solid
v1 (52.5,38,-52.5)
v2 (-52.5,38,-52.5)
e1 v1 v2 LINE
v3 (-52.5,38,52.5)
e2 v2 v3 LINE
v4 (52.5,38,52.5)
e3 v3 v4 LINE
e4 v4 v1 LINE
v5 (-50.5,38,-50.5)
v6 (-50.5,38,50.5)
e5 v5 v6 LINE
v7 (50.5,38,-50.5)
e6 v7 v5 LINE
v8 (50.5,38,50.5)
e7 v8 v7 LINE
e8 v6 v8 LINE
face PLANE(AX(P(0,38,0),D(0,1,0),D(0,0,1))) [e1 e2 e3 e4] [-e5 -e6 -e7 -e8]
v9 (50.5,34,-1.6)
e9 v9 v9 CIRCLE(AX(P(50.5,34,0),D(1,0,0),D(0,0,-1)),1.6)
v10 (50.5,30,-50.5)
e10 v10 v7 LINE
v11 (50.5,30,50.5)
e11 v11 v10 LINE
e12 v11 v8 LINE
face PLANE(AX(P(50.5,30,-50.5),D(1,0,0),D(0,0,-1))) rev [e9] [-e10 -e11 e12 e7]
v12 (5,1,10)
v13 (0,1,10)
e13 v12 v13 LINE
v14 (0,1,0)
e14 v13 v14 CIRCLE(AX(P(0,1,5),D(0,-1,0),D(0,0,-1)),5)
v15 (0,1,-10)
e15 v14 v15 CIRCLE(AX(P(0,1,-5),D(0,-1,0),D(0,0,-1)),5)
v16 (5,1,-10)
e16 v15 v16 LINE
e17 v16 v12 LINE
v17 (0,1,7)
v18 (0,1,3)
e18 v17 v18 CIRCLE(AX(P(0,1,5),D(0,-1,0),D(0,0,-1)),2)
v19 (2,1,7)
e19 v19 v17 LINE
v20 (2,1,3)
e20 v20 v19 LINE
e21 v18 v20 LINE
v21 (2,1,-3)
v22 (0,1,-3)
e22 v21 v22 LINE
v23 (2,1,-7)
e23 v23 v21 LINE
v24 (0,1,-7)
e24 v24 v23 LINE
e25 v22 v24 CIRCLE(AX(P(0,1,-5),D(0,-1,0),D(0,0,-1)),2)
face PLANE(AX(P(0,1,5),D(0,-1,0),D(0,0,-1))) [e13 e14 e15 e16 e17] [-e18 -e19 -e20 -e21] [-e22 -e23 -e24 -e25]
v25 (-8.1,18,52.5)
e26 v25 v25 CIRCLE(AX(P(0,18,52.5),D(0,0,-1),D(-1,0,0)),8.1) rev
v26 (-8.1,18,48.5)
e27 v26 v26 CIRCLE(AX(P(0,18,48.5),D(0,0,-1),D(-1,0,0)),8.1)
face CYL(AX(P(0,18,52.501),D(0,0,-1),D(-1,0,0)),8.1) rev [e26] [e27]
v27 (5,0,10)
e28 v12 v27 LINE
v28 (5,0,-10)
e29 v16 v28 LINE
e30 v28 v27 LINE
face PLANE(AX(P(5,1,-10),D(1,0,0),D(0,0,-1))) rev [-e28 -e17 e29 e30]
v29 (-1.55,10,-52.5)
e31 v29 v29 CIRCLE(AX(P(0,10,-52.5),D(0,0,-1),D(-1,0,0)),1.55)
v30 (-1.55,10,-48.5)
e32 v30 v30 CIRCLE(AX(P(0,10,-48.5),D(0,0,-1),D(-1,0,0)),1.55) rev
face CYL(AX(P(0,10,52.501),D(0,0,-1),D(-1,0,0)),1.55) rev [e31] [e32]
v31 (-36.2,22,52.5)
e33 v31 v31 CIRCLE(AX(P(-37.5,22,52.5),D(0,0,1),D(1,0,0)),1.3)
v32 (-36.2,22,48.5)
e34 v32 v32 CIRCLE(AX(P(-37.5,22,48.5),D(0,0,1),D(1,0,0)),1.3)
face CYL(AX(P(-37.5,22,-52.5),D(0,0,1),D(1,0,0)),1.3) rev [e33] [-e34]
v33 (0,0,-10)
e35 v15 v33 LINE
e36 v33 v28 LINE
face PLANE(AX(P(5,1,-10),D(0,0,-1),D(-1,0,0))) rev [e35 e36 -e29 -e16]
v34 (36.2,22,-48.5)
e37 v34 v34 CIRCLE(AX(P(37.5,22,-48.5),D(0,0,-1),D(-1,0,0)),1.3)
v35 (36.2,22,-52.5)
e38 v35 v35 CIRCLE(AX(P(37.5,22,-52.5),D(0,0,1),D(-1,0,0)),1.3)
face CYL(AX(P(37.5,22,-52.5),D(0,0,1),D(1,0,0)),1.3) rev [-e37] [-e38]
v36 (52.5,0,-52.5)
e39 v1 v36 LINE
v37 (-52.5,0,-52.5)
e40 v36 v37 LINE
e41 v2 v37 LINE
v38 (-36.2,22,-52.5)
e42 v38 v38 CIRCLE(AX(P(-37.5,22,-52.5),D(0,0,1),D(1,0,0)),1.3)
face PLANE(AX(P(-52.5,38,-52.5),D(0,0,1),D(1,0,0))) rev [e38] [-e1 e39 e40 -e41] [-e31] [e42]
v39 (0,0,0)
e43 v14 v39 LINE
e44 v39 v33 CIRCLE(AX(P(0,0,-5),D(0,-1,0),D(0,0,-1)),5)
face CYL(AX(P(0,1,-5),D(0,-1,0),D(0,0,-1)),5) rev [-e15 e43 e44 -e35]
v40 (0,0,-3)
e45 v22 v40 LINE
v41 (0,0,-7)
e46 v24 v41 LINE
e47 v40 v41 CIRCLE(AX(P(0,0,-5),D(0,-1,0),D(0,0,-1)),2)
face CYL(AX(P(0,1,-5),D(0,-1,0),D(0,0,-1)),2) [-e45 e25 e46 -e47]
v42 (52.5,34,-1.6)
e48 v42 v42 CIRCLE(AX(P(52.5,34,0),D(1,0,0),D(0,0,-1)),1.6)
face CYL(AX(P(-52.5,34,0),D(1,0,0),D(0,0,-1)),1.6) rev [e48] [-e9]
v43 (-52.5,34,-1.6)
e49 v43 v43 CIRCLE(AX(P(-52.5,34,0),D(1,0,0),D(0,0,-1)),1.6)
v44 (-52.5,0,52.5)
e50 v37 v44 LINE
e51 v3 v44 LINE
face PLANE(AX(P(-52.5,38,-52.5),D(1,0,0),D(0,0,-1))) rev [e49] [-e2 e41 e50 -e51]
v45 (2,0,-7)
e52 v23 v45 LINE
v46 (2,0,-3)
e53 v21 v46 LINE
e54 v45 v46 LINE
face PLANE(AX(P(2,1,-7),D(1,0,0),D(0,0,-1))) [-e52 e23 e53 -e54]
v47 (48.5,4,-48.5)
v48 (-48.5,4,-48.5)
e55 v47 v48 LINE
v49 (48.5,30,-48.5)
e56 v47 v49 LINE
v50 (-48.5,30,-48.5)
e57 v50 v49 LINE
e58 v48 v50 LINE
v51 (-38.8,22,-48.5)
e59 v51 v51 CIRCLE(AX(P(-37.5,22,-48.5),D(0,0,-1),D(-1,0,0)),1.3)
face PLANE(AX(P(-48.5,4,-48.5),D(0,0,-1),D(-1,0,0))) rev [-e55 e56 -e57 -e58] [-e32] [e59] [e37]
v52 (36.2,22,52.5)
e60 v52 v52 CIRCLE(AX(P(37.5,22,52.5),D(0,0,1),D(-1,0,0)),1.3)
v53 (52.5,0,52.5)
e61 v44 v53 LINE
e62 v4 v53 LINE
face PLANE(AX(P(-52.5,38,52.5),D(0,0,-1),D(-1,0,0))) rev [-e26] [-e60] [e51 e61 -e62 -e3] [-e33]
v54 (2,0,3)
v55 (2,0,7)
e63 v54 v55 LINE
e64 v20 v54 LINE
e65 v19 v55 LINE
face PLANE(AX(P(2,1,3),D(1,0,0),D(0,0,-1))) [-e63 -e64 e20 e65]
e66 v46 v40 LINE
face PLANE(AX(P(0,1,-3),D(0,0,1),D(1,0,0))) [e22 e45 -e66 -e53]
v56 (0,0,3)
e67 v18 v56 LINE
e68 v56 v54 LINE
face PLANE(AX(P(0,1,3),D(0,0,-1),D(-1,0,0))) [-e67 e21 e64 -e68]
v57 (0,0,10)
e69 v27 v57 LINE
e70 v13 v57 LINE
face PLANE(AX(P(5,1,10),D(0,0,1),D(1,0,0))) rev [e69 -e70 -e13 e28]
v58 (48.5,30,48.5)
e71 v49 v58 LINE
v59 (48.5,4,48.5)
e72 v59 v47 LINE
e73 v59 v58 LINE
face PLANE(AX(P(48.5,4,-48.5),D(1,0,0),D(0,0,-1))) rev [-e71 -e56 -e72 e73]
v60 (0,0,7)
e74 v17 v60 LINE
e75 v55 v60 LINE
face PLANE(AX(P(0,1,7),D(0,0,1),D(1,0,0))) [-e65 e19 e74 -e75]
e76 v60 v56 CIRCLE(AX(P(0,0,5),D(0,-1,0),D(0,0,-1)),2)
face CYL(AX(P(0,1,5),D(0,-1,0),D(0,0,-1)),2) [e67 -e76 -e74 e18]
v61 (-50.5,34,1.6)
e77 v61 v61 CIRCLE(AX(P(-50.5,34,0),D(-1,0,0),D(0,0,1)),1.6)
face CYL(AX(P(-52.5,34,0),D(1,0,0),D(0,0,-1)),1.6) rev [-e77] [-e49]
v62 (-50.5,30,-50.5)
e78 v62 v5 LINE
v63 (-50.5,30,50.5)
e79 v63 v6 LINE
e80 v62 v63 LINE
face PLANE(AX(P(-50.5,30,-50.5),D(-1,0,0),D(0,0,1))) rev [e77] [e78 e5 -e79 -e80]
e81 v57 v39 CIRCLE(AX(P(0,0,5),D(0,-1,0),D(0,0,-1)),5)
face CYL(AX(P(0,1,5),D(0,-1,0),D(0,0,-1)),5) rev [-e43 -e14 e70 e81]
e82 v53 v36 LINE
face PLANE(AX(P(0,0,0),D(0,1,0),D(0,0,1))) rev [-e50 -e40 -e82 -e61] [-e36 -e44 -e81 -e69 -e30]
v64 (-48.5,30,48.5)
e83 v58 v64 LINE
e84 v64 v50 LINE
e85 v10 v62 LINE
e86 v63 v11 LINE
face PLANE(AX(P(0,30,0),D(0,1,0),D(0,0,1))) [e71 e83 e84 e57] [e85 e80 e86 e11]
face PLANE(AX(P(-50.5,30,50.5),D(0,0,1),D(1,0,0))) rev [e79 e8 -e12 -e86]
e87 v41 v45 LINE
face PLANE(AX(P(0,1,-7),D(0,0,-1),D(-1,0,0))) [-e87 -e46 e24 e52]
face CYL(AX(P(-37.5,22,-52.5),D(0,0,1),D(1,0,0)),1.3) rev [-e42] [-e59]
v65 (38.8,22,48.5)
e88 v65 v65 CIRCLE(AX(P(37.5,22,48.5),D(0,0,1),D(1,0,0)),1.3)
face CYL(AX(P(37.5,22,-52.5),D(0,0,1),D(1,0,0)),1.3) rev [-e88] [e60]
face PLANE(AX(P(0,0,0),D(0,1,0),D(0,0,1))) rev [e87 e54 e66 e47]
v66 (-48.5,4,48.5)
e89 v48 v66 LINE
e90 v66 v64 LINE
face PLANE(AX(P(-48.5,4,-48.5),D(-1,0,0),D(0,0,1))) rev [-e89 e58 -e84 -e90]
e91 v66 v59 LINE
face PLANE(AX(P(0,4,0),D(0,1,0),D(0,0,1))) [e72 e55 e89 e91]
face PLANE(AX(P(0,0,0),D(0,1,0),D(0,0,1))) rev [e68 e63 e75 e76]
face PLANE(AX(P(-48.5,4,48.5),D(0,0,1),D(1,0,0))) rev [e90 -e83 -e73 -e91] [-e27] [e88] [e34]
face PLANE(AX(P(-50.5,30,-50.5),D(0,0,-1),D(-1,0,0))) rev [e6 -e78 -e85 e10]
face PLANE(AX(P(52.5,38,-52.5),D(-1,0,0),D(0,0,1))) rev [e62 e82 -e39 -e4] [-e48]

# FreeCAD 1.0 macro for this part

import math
import FreeCAD as App
import Part
import Sketcher

V = App.Vector


def add_polygon(sketch, points):
    """Adds a closed chain of lines whose ends are joined by coincident constraints."""
    first, n = sketch.GeometryCount, len(points)
    for a, b in zip(points, points[1:] + points[:1]):
        sketch.addGeometry(Part.LineSegment(App.Vector(*a, 0), App.Vector(*b, 0)), False)
    for i in range(n):
        sketch.addConstraint(Sketcher.Constraint("Coincident", first + i, 2, first + (i + 1) % n, 1))

doc = App.newDocument("Part")
body = doc.addObject("PartDesign::Body", "Body")

# Sketch on XZ plane
sketch1 = doc.addObject("Sketcher::SketchObject", "Sketch")
body.addObject(sketch1)
sketch1.AttachmentSupport = (doc.XZ_Plane, [""])
sketch1.MapMode = "FlatFace"
add_polygon(sketch1, [(-52, -52), (-52, 52), (52, 52), (52, -52)])  # lines 0-3
sketch1.addConstraint([
    Sketcher.Constraint("Vertical", 0),
    Sketcher.Constraint("Horizontal", 1),
    Sketcher.Constraint("Vertical", 2),
    Sketcher.Constraint("Horizontal", 3),
    Sketcher.Constraint("Symmetric", 0, 2, 2, 2, -1, 1),
    Sketcher.Constraint("Equal", 3, 0),
    Sketcher.Constraint("DistanceX", 1, 1, 1, 2, 105.0),
])
pad1 = doc.addObject("PartDesign::Pad", "Pad")
body.addObject(pad1)
pad1.Profile = sketch1
pad1.Length = 38
pad1.Reversed = True

# Sketch on XZ plane
sketch2 = doc.addObject("Sketcher::SketchObject", "Sketch001")
body.addObject(sketch2)
sketch2.AttachmentSupport = (doc.XZ_Plane, [""])
sketch2.MapMode = "FlatFace"
sketch2.AttachmentOffset = App.Placement(V(0, 0, -38), App.Rotation())
add_polygon(sketch2, [(-48, -48), (-48, 48), (48, 48), (48, -48)])  # lines 0-3
sketch2.addConstraint([
    Sketcher.Constraint("Vertical", 0),
    Sketcher.Constraint("Horizontal", 1),
    Sketcher.Constraint("Vertical", 2),
    Sketcher.Constraint("Horizontal", 3),
    Sketcher.Constraint("Symmetric", 0, 2, 2, 2, -1, 1),
    Sketcher.Constraint("Equal", 3, 0),
    Sketcher.Constraint("DistanceX", 1, 1, 1, 2, 97.0),
])
pocket1 = doc.addObject("PartDesign::Pocket", "Pocket")
body.addObject(pocket1)
pocket1.Profile = sketch2
pocket1.Length = 34
pocket1.Reversed = True

# Sketch on XZ plane
sketch3 = doc.addObject("Sketcher::SketchObject", "Sketch002")
body.addObject(sketch3)
sketch3.AttachmentSupport = (doc.XZ_Plane, [""])
sketch3.MapMode = "FlatFace"
sketch3.AttachmentOffset = App.Placement(V(0, 0, -38), App.Rotation())
add_polygon(sketch3, [(-50, -50), (-50, 50), (50, 50), (50, -50)])  # lines 0-3
sketch3.addConstraint([
    Sketcher.Constraint("Vertical", 0),
    Sketcher.Constraint("Horizontal", 1),
    Sketcher.Constraint("Vertical", 2),
    Sketcher.Constraint("Horizontal", 3),
    Sketcher.Constraint("Symmetric", 0, 2, 2, 2, -1, 1),
    Sketcher.Constraint("Equal", 3, 0),
    Sketcher.Constraint("DistanceX", 1, 1, 1, 2, 101.0),
])
pocket2 = doc.addObject("PartDesign::Pocket", "Pocket001")
body.addObject(pocket2)
pocket2.Profile = sketch3
pocket2.Length = 8
pocket2.Reversed = True

# Sketch on YZ plane
sketch4 = doc.addObject("Sketcher::SketchObject", "Sketch003")
body.addObject(sketch4)
sketch4.AttachmentSupport = (doc.YZ_Plane, [""])
sketch4.MapMode = "FlatFace"
sketch4.AttachmentOffset = App.Placement(V(0, 0, 52.5), App.Rotation())
sketch4.addGeometry(Part.Circle(V(34, 0, 0), V(0, 0, 1), 1.6), False)
sketch4.addConstraint([
    Sketcher.Constraint("PointOnObject", 0, 3, -1),
    Sketcher.Constraint("Diameter", 0, 3.2),
    Sketcher.Constraint("DistanceX", -1, 1, 0, 3, 34.0),
])
pocket3 = doc.addObject("PartDesign::Pocket", "Pocket002")
body.addObject(pocket3)
pocket3.Profile = sketch4
pocket3.Type = "ThroughAll"

# Sketch on XY plane
sketch5 = doc.addObject("Sketcher::SketchObject", "Sketch004")
body.addObject(sketch5)
sketch5.AttachmentSupport = (doc.XY_Plane, [""])
sketch5.MapMode = "FlatFace"
sketch5.AttachmentOffset = App.Placement(V(0, 0, 48.5), App.Rotation())
sketch5.addGeometry(Part.Circle(V(0, 18, 0), V(0, 0, 1), 8), False)
sketch5.addConstraint([
    Sketcher.Constraint("PointOnObject", 0, 3, -2),
    Sketcher.Constraint("Diameter", 0, 16.2),
    Sketcher.Constraint("DistanceY", -1, 1, 0, 3, 18.0),
])
pocket4 = doc.addObject("PartDesign::Pocket", "Pocket003")
body.addObject(pocket4)
pocket4.Profile = sketch5
pocket4.Type = "UpToFirst"
pocket4.Reversed = True

# Sketch on XZ plane
sketch6 = doc.addObject("Sketcher::SketchObject", "Sketch005")
body.addObject(sketch6)
sketch6.AttachmentSupport = (doc.XZ_Plane, [""])
sketch6.MapMode = "FlatFace"
sketch6.addGeometry([
    Part.LineSegment(V(0, -10, 0), V(5, -10, 0)),  # 0
    Part.LineSegment(V(5, -10, 0), V(5, 10, 0)),  # 1
    Part.LineSegment(V(5, 10, 0), V(0, 10, 0)),  # 2
    Part.ArcOfCircle(Part.Circle(V(0, 5, 0), V(0, 0, 1), 5), math.radians(90), math.radians(270)),  # 3
    Part.ArcOfCircle(Part.Circle(V(0, -5, 0), V(0, 0, 1), 5), math.radians(90), math.radians(270)),  # 4
    Part.ArcOfCircle(Part.Circle(V(0, -5, 0), V(0, 0, 1), 2), math.radians(90), math.radians(270)),  # 5
    Part.LineSegment(V(0, -3, 0), V(2, -3, 0)),  # 6
    Part.LineSegment(V(2, -3, 0), V(2, -7, 0)),  # 7
    Part.LineSegment(V(2, -7, 0), V(0, -7, 0)),  # 8
    Part.ArcOfCircle(Part.Circle(V(0, 5, 0), V(0, 0, 1), 2), math.radians(90), math.radians(270)),  # 9
    Part.LineSegment(V(0, 7, 0), V(2, 7, 0)),  # 10
    Part.LineSegment(V(2, 7, 0), V(2, 3, 0)),  # 11
    Part.LineSegment(V(2, 3, 0), V(0, 3, 0)),  # 12
], False)
sketch6.addConstraint([
    Sketcher.Constraint("Coincident", 0, 2, 1, 1),
    Sketcher.Constraint("Coincident", 1, 2, 2, 1),
    Sketcher.Constraint("Tangent", 2, 2, 3, 1),
    Sketcher.Constraint("Tangent", 3, 2, 4, 1),
    Sketcher.Constraint("Tangent", 4, 2, 0, 1),
    Sketcher.Constraint("Tangent", 5, 1, 6, 1),
    Sketcher.Constraint("Coincident", 6, 2, 7, 1),
    Sketcher.Constraint("Coincident", 7, 2, 8, 1),
    Sketcher.Constraint("Tangent", 8, 2, 5, 2),
    Sketcher.Constraint("Tangent", 9, 1, 10, 1),
    Sketcher.Constraint("Coincident", 10, 2, 11, 1),
    Sketcher.Constraint("Coincident", 11, 2, 12, 1),
    Sketcher.Constraint("Tangent", 12, 2, 9, 2),
    Sketcher.Constraint("Horizontal", 0),
    Sketcher.Constraint("Vertical", 1),
    Sketcher.Constraint("Horizontal", 2),
    Sketcher.Constraint("Horizontal", 6),
    Sketcher.Constraint("Vertical", 7),
    Sketcher.Constraint("Horizontal", 8),
    Sketcher.Constraint("Horizontal", 10),
    Sketcher.Constraint("Vertical", 11),
    Sketcher.Constraint("Horizontal", 12),
    Sketcher.Constraint("Coincident", 3, 2, -1, 1),
    Sketcher.Constraint("Coincident", 5, 3, 4, 3),
    Sketcher.Constraint("Coincident", 9, 3, 3, 3),
    Sketcher.Constraint("Equal", 3, 4),
    Sketcher.Constraint("Equal", 5, 9),
    Sketcher.Constraint("PointOnObject", 3, 3, -2),
    Sketcher.Constraint("Vertical", 7, 2, 10, 2),
    Sketcher.Constraint("Radius", 3, 5.0),
    Sketcher.Constraint("Radius", 5, 2.0),
    Sketcher.Constraint("DistanceX", 0, 1, 0, 2, 5.0),
    Sketcher.Constraint("DistanceX", 6, 1, 6, 2, 2.0),
])
pocket5 = doc.addObject("PartDesign::Pocket", "Pocket004")
body.addObject(pocket5)
pocket5.Profile = sketch6
pocket5.Length = 1

# Sketch on XY plane
sketch7 = doc.addObject("Sketcher::SketchObject", "Sketch006")
body.addObject(sketch7)
sketch7.AttachmentSupport = (doc.XY_Plane, [""])
sketch7.MapMode = "FlatFace"
sketch7.AttachmentOffset = App.Placement(V(0, 0, 52.5), App.Rotation())
sketch7.addGeometry([
    Part.Circle(V(-37.5, 22, 0), V(0, 0, 1), 1.3),
    Part.Circle(V(37.5, 22, 0), V(0, 0, 1), 1.3),
], False)
sketch7.addConstraint([
    Sketcher.Constraint("Equal", 0, 1),
    Sketcher.Constraint("Symmetric", 0, 3, 1, 3, -2),
    Sketcher.Constraint("Diameter", 0, 2.6),
    Sketcher.Constraint("DistanceY", -1, 1, 0, 3, 22.0),
    Sketcher.Constraint("DistanceX", 0, 3, 1, 3, 75.0),
])
pocket6 = doc.addObject("PartDesign::Pocket", "Pocket005")
body.addObject(pocket6)
pocket6.Profile = sketch7
pocket6.Type = "ThroughAll"

# Sketch on XY plane
sketch8 = doc.addObject("Sketcher::SketchObject", "Sketch007")
body.addObject(sketch8)
sketch8.AttachmentSupport = (doc.XY_Plane, [""])
sketch8.MapMode = "FlatFace"
sketch8.AttachmentOffset = App.Placement(V(0, 0, -52.5), App.Rotation())
sketch8.addGeometry(Part.Circle(V(0, 10, 0), V(0, 0, 1), 1.6), False)
sketch8.addConstraint([
    Sketcher.Constraint("PointOnObject", 0, 3, -2),
    Sketcher.Constraint("Diameter", 0, 3.1),
    Sketcher.Constraint("DistanceY", -1, 1, 0, 3, 10.0),
])
pocket7 = doc.addObject("PartDesign::Pocket", "Pocket006")
body.addObject(pocket7)
pocket7.Profile = sketch8
pocket7.Type = "UpToFirst"
pocket7.Reversed = True

doc.recompute()
